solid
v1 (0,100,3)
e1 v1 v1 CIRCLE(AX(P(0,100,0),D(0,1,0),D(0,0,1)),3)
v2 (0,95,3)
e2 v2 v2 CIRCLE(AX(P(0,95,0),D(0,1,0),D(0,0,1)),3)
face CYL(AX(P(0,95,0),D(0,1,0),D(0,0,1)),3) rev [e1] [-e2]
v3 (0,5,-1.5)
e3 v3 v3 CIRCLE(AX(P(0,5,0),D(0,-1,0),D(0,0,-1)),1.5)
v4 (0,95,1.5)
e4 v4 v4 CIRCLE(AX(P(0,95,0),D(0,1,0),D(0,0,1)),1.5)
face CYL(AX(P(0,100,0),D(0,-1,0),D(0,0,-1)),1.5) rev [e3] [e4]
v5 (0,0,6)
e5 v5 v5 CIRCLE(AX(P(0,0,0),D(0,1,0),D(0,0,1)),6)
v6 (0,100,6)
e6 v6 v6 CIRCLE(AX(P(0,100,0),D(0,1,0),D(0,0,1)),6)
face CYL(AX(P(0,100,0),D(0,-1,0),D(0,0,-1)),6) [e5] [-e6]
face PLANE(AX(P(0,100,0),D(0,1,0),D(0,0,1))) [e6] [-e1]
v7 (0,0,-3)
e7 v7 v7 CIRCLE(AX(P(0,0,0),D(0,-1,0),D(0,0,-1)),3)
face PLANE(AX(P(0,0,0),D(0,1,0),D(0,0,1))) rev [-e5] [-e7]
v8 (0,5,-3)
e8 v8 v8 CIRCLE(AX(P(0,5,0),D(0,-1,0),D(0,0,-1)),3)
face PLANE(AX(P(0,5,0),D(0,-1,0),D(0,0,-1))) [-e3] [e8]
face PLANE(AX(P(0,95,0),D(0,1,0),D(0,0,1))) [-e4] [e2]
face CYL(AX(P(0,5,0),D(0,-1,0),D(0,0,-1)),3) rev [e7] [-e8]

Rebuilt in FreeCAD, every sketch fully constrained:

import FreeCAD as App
import Part
import Sketcher
from FreeCAD import Vector
Q = App.Units.Quantity

doc = App.newDocument("Part")
body = doc.addObject("PartDesign::Body", "Body")

sketch1 = body.newObject("Sketcher::SketchObject", "Sketch")
sketch1.AttachmentSupport = (doc.getObject("XZ_Plane"), [""])
sketch1.MapMode = "FlatFace"
sketch1.addGeometry([
    Part.Circle(Vector(0, 0, 0), Vector(0, 0, 1), 6),
    Part.Circle(Vector(0, 0, 0), Vector(0, 0, 1), 1.5),
], False)
sketch1.addConstraint([
    Sketcher.Constraint("Coincident", 0, 3, -1, 1),
    Sketcher.Constraint("Coincident", 1, 3, -1, 1),
    Sketcher.Constraint("Diameter", 0, Q("12 mm")),
    Sketcher.Constraint("Diameter", 1, Q("3 mm")),
])
pad1 = body.newObject("PartDesign::Pad", "Pad")
pad1.Profile = sketch1
pad1.Length = 100
pad1.Reversed = True

sketch2 = body.newObject("Sketcher::SketchObject", "Sketch001")
sketch2.AttachmentSupport = (doc.getObject("XZ_Plane"), [""])
sketch2.MapMode = "FlatFace"
sketch2.AttachmentOffset = App.Placement(Vector(0, 0, -100), App.Rotation())
sketch2.addGeometry(Part.Circle(Vector(0, 0, 0), Vector(0, 0, 1), 3), False)
sketch2.addConstraint([
    Sketcher.Constraint("Coincident", 0, 3, -1, 1),
    Sketcher.Constraint("Diameter", 0, Q("6 mm")),
])
pocket1 = body.newObject("PartDesign::Pocket", "Pocket")
pocket1.Profile = sketch2
pocket1.Length = 5
pocket1.Reversed = True

sketch3 = body.newObject("Sketcher::SketchObject", "Sketch002")
sketch3.AttachmentSupport = (doc.getObject("XZ_Plane"), [""])
sketch3.MapMode = "FlatFace"
sketch3.addGeometry(Part.Circle(Vector(0, 0, 0), Vector(0, 0, 1), 3), False)
sketch3.addConstraint([
    Sketcher.Constraint("Coincident", 0, 3, -1, 1),
    Sketcher.Constraint("Diameter", 0, Q("6 mm")),
])
pocket2 = body.newObject("PartDesign::Pocket", "Pocket001")
pocket2.Profile = sketch3
pocket2.Length = 5

doc.recompute()
